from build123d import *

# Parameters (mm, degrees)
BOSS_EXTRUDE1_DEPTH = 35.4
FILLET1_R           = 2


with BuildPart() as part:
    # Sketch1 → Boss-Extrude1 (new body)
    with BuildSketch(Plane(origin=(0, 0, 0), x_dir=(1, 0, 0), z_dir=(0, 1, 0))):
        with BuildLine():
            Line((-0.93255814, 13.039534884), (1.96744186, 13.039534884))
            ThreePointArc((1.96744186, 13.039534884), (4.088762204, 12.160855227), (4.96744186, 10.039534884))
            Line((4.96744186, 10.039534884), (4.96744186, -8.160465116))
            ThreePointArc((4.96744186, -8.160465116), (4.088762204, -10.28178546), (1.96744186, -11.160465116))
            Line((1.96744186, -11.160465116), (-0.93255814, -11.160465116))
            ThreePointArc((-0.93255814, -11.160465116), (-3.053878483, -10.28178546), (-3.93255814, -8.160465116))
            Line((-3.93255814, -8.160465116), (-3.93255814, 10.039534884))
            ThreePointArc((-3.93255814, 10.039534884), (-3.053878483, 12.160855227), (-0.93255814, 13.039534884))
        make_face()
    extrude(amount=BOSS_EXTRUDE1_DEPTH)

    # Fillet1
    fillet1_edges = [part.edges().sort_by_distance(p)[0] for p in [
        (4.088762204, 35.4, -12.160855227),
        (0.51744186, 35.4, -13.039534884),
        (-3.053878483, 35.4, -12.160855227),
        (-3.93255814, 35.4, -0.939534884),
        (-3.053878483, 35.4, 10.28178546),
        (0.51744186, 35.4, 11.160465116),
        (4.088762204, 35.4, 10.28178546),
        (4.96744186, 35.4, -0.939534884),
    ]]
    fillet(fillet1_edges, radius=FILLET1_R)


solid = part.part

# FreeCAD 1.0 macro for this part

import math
import FreeCAD as App
import Part
import Sketcher
Q = App.Units.Quantity


def edges_at(feature, points):
    """Names of the edges that pass closest to the given points."""
    edges = feature.Shape.Edges
    near = lambda p: min(range(len(edges)), key=lambda i: edges[i].distToShape(Part.Vertex(*p))[0])
    return sorted({f"Edge{near(p) + 1}" for p in points})

doc = App.newDocument("Part")
params = doc.addObject("Spreadsheet::Sheet", "Params")
for row, (alias, value) in enumerate([
    ("sketch1_radius", "3 mm"),
    ("sketch1_width", "2.9 mm"),
    ("sketch1_height", "18.2 mm"),
    ("pad1_length", "35.4 mm"),
    ("fillet_radius", "2 mm"),
], start=1):
    params.set(f"A{row}", alias)
    params.set(f"B{row}", "=" + value)
    params.setAlias(f"B{row}", alias)

body = doc.addObject("PartDesign::Body", "Body")

# Sketch on XZ plane
sketch1 = body.newObject("Sketcher::SketchObject", "Sketch")
sketch1.AttachmentSupport = (doc.getObject("XZ_Plane"), [""])
sketch1.MapMode = "FlatFace"
sketch1.addGeometry([
    Part.LineSegment(App.Vector(1.967442, -13.039535, 0), App.Vector(-0.932558, -13.039535, 0)),  # 0
    Part.ArcOfCircle(Part.Circle(App.Vector(-0.932558, -10.039535, 0), App.Vector(0, 0, 1), 3), math.radians(-180), math.radians(-90)),  # 1
    Part.LineSegment(App.Vector(-3.932558, -10.039535, 0), App.Vector(-3.932558, 8.160465, 0)),  # 2
    Part.ArcOfCircle(Part.Circle(App.Vector(-0.932558, 8.160465, 0), App.Vector(0, 0, 1), 3), math.radians(90), math.radians(180)),  # 3
    Part.LineSegment(App.Vector(-0.932558, 11.160465, 0), App.Vector(1.967442, 11.160465, 0)),  # 4
    Part.ArcOfCircle(Part.Circle(App.Vector(1.967442, 8.160465, 0), App.Vector(0, 0, 1), 3), math.radians(0), math.radians(90)),  # 5
    Part.LineSegment(App.Vector(4.967442, 8.160465, 0), App.Vector(4.967442, -10.039535, 0)),  # 6
    Part.ArcOfCircle(Part.Circle(App.Vector(1.967442, -10.039535, 0), App.Vector(0, 0, 1), 3), math.radians(-90), math.radians(0)),  # 7
], False)
sketch1.addConstraint([
    Sketcher.Constraint("Tangent", 0, 2, 1, 2),
    Sketcher.Constraint("Tangent", 1, 1, 2, 1),
    Sketcher.Constraint("Tangent", 2, 2, 3, 2),
    Sketcher.Constraint("Tangent", 3, 1, 4, 1),
    Sketcher.Constraint("Tangent", 4, 2, 5, 2),
    Sketcher.Constraint("Tangent", 5, 1, 6, 1),
    Sketcher.Constraint("Tangent", 6, 2, 7, 2),
    Sketcher.Constraint("Tangent", 7, 1, 0, 1),
    Sketcher.Constraint("Horizontal", 0),
    Sketcher.Constraint("Vertical", 2),
    Sketcher.Constraint("Horizontal", 4),
    Sketcher.Constraint("Vertical", 6),
    Sketcher.Constraint("Equal", 1, 3),
    Sketcher.Constraint("Equal", 3, 5),
    Sketcher.Constraint("Equal", 5, 7),
    Sketcher.Constraint("Radius", 1, Q("3 mm")),
    Sketcher.Constraint("DistanceX", 0, 2, 0, 1, Q("2.9 mm")),
    Sketcher.Constraint("DistanceY", 2, 1, 2, 2, Q("18.2 mm")),
    Sketcher.Constraint("DistanceX", 1, 3, -1, 1, Q("0.932558 mm")),
    Sketcher.Constraint("DistanceY", 1, 3, -1, 1, Q("10.039535 mm")),
])
sketch1.setExpression("Constraints[15]", "Params.sketch1_radius")
sketch1.setExpression("Constraints[16]", "Params.sketch1_width")
sketch1.setExpression("Constraints[17]", "Params.sketch1_height")
pad1 = body.newObject("PartDesign::Pad", "Pad")
pad1.Profile = sketch1
pad1.setExpression("Length", "Params.pad1_length")
pad1.Reversed = True
doc.recompute()

fillet = body.newObject("PartDesign::Fillet", "Fillet")
fillet.Base = (pad1, edges_at(pad1, [
    (4.089, 35.4, -12.161),
    (0.517, 35.4, -13.04),
    (-3.054, 35.4, -12.161),
    (-3.933, 35.4, -0.94),
    (-3.054, 35.4, 10.282),
    (0.517, 35.4, 11.16),
    (4.089, 35.4, 10.282),
    (4.967, 35.4, -0.94),
]))
fillet.setExpression("Radius", "Params.fillet_radius")

doc.recompute()
